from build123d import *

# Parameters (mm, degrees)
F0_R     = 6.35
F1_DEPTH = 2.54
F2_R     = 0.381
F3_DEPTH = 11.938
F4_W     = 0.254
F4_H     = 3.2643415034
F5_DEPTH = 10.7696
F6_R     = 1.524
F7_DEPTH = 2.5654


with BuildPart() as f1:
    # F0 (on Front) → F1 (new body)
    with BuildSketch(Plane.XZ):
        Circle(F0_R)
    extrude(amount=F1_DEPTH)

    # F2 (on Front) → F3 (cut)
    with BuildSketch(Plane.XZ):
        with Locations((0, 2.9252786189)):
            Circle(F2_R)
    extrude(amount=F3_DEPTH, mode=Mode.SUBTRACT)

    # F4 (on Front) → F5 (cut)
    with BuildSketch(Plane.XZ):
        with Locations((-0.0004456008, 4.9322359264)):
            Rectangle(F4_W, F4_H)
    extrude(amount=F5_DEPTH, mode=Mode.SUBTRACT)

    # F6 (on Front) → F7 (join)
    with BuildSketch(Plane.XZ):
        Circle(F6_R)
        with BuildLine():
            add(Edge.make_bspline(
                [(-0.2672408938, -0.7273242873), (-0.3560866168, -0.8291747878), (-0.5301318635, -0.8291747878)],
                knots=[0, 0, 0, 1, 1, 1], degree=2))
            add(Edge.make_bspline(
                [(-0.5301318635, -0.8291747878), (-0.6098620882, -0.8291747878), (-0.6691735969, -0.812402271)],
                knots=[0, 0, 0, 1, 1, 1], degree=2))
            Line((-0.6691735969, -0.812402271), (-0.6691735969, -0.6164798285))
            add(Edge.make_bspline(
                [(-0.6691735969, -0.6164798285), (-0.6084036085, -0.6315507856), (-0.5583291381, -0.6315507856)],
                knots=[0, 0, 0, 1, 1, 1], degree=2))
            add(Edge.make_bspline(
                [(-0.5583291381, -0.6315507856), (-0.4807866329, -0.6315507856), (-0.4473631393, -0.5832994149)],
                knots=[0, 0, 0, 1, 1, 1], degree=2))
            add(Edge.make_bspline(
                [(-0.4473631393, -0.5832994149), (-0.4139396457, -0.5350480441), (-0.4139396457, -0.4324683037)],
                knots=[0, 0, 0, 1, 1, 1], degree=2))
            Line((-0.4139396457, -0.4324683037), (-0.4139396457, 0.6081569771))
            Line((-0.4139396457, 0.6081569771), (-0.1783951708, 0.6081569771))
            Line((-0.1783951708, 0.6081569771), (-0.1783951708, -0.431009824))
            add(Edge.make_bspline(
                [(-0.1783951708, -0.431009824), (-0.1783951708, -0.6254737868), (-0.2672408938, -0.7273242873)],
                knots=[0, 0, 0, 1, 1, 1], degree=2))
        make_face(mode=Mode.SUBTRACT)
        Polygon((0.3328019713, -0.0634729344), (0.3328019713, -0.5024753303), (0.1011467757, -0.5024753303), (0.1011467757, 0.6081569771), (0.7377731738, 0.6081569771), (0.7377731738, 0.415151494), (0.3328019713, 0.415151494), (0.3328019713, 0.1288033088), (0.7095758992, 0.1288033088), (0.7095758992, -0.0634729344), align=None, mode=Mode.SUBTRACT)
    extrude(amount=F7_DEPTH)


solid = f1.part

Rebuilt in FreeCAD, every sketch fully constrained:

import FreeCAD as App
import Part
import Sketcher
Q = App.Units.Quantity

doc = App.newDocument("Part")
body = doc.addObject("PartDesign::Body", "Body")

# Sketch on XZ plane
sketch1 = body.newObject("Sketcher::SketchObject", "Sketch")
sketch1.AttachmentSupport = (doc.getObject("XZ_Plane"), [""])
sketch1.MapMode = "FlatFace"
sketch1.addGeometry(Part.Circle(App.Vector(0, 0, 0), App.Vector(0, 0, 1), 6), False)
sketch1.addConstraint([
    Sketcher.Constraint("Coincident", 0, 3, -1, 1),
    Sketcher.Constraint("Diameter", 0, Q("0.5 in")),
])
pad1 = body.newObject("PartDesign::Pad", "Pad")
pad1.Profile = sketch1
pad1.Length = Q("0.1 in")

# Sketch on XZ plane
sketch2 = body.newObject("Sketcher::SketchObject", "Sketch001")
sketch2.AttachmentSupport = (doc.getObject("XZ_Plane"), [""])
sketch2.MapMode = "FlatFace"
sketch2.addGeometry(Part.Circle(App.Vector(0, 2.93, 0), App.Vector(0, 0, 1), 0.38), False)
sketch2.addConstraint([
    Sketcher.Constraint("PointOnObject", 0, 3, -2),
    Sketcher.Constraint("Diameter", 0, Q("0.03 in")),
    Sketcher.Constraint("DistanceY", -1, 1, 0, 3, 2.925279),
])
pocket1 = body.newObject("PartDesign::Pocket", "Pocket")
pocket1.Profile = sketch2
pocket1.Length = Q("0.47 in")
pocket1.Reversed = True

# Sketch on XZ plane
sketch3 = body.newObject("Sketcher::SketchObject", "Sketch002")
sketch3.AttachmentSupport = (doc.getObject("XZ_Plane"), [""])
sketch3.MapMode = "FlatFace"
sketch3.addGeometry([
    Part.LineSegment(App.Vector(-0.13, 6.56, 0), App.Vector(-0.13, 3.3, 0)),
    Part.LineSegment(App.Vector(-0.13, 3.3, 0), App.Vector(0.13, 3.3, 0)),
    Part.LineSegment(App.Vector(0.13, 3.3, 0), App.Vector(0.13, 6.56, 0)),
    Part.LineSegment(App.Vector(0.13, 6.56, 0), App.Vector(-0.13, 6.56, 0)),
], False)
sketch3.addConstraint([
    Sketcher.Constraint("Coincident", 0, 2, 1, 1),
    Sketcher.Constraint("Coincident", 1, 2, 2, 1),
    Sketcher.Constraint("Coincident", 2, 2, 3, 1),
    Sketcher.Constraint("Coincident", 3, 2, 0, 1),
    Sketcher.Constraint("Vertical", 0),
    Sketcher.Constraint("Horizontal", 1),
    Sketcher.Constraint("Vertical", 2),
    Sketcher.Constraint("Horizontal", 3),
    Sketcher.Constraint("DistanceX", 1, 1, 1, 2, Q("0.01 in")),
    Sketcher.Constraint("DistanceY", 0, 2, 0, 1, 3.264342),
    Sketcher.Constraint("DistanceX", 0, 2, -1, 1, 0.127446),
    Sketcher.Constraint("DistanceY", -1, 1, 0, 2, 3.300065),
])
pocket2 = body.newObject("PartDesign::Pocket", "Pocket001")
pocket2.Profile = sketch3
pocket2.Length = Q("0.424 in")
pocket2.Reversed = True

# Sketch on XZ plane
sketch4 = body.newObject("Sketcher::SketchObject", "Sketch003")
sketch4.AttachmentSupport = (doc.getObject("XZ_Plane"), [""])
sketch4.MapMode = "FlatFace"
sketch4.addGeometry([
    Part.Circle(App.Vector(0, 0, 0), App.Vector(0, 0, 1), 1.524),  # 0
    Part.BSplineCurve([App.Vector(-0.178395, -0.43101, 0), App.Vector(-0.178395, -0.625474, 0), App.Vector(-0.356087, -0.829175, 0), App.Vector(-0.609862, -0.829175, 0), App.Vector(-0.669174, -0.812402, 0)], [3, 1, 1, 3], [0, 1, 2, 2.458100558], False, 2, [1, 1, 1, 1, 1], False),  # 1
    Part.LineSegment(App.Vector(-0.669174, -0.812402, 0), App.Vector(-0.669174, -0.61648, 0)),  # 2
    Part.BSplineCurve([App.Vector(-0.669174, -0.61648, 0), App.Vector(-0.608404, -0.631551, 0), App.Vector(-0.480787, -0.631551, 0), App.Vector(-0.447363, -0.583299, 0)], [3, 1, 3], [0, 1, 2.548543691], False, 2, [1, 1, 1, 1], False),  # 3
    Part.BSplineCurve([App.Vector(-0.447363, -0.583299, 0), App.Vector(-0.41394, -0.535048, 0), App.Vector(-0.41394, -0.432468, 0)], [3, 3], [0, 1], False, 2, [1, 1, 1], False),  # 4
    Part.LineSegment(App.Vector(-0.41394, -0.432468, 0), App.Vector(-0.41394, 0.608157, 0)),  # 5
    Part.LineSegment(App.Vector(-0.41394, 0.608157, 0), App.Vector(-0.178395, 0.608157, 0)),  # 6
    Part.LineSegment(App.Vector(-0.178395, 0.608157, 0), App.Vector(-0.178395, -0.43101, 0)),  # 7
    Part.LineSegment(App.Vector(0.709576, -0.063473, 0), App.Vector(0.332802, -0.063473, 0)),  # 8
    Part.LineSegment(App.Vector(0.332802, -0.063473, 0), App.Vector(0.332802, -0.502475, 0)),  # 9
    Part.LineSegment(App.Vector(0.332802, -0.502475, 0), App.Vector(0.101147, -0.502475, 0)),  # 10
    Part.LineSegment(App.Vector(0.101147, -0.502475, 0), App.Vector(0.101147, 0.608157, 0)),  # 11
    Part.LineSegment(App.Vector(0.101147, 0.608157, 0), App.Vector(0.737773, 0.608157, 0)),  # 12
    Part.LineSegment(App.Vector(0.737773, 0.608157, 0), App.Vector(0.737773, 0.415151, 0)),  # 13
    Part.LineSegment(App.Vector(0.737773, 0.415151, 0), App.Vector(0.332802, 0.415151, 0)),  # 14
    Part.LineSegment(App.Vector(0.332802, 0.415151, 0), App.Vector(0.332802, 0.128803, 0)),  # 15
    Part.LineSegment(App.Vector(0.332802, 0.128803, 0), App.Vector(0.709576, 0.128803, 0)),  # 16
    Part.LineSegment(App.Vector(0.709576, 0.128803, 0), App.Vector(0.709576, -0.063473, 0)),  # 17
], False)
sketch4.addConstraint([
    Sketcher.Constraint("Block", 1),
    Sketcher.Constraint("Block", 3),
    Sketcher.Constraint("Block", 4),
    Sketcher.Constraint("Coincident", 1, 2, 2, 1),
    Sketcher.Constraint("Coincident", 2, 2, 3, 1),
    Sketcher.Constraint("Coincident", 4, 2, 5, 1),
    Sketcher.Constraint("Coincident", 5, 2, 6, 1),
    Sketcher.Constraint("Coincident", 6, 2, 7, 1),
    Sketcher.Constraint("Coincident", 7, 2, 1, 1),
    Sketcher.Constraint("Coincident", 8, 2, 9, 1),
    Sketcher.Constraint("Coincident", 9, 2, 10, 1),
    Sketcher.Constraint("Coincident", 10, 2, 11, 1),
    Sketcher.Constraint("Coincident", 11, 2, 12, 1),
    Sketcher.Constraint("Coincident", 12, 2, 13, 1),
    Sketcher.Constraint("Coincident", 13, 2, 14, 1),
    Sketcher.Constraint("Coincident", 14, 2, 15, 1),
    Sketcher.Constraint("Coincident", 15, 2, 16, 1),
    Sketcher.Constraint("Coincident", 16, 2, 17, 1),
    Sketcher.Constraint("Coincident", 17, 2, 8, 1),
    Sketcher.Constraint("Vertical", 5),
    Sketcher.Constraint("Horizontal", 6),
    Sketcher.Constraint("Vertical", 7),
    Sketcher.Constraint("Horizontal", 8),
    Sketcher.Constraint("Vertical", 9),
    Sketcher.Constraint("Horizontal", 10),
    Sketcher.Constraint("Vertical", 11),
    Sketcher.Constraint("Horizontal", 12),
    Sketcher.Constraint("Vertical", 13),
    Sketcher.Constraint("Horizontal", 14),
    Sketcher.Constraint("Vertical", 15),
    Sketcher.Constraint("Horizontal", 16),
    Sketcher.Constraint("Vertical", 17),
    Sketcher.Constraint("Coincident", 0, 3, -1, 1),
    Sketcher.Constraint("Horizontal", 6, 2, 11, 2),
    Sketcher.Constraint("Vertical", 9, 2, 14, 2),
    Sketcher.Constraint("Diameter", 0, Q("0.12 in")),
    Sketcher.Constraint("DistanceX", 14, 2, 14, 1, 0.404971),
    Sketcher.Constraint("DistanceY", 15, 2, 15, 1, 0.286348),
    Sketcher.Constraint("DistanceX", -1, 1, 8, 2, 0.332802),
    Sketcher.Constraint("DistanceX", 8, 2, 8, 1, 0.376774),
    Sketcher.Constraint("DistanceX", 10, 2, 10, 1, 0.231655),
    Sketcher.Constraint("DistanceY", 5, 1, 5, 2, 1.040625),
    Sketcher.Constraint("DistanceY", 9, 2, 9, 1, 0.439002),
    Sketcher.Constraint("DistanceY", 11, 1, 11, 2, 1.110632),
    Sketcher.Constraint("DistanceY", 13, 2, 13, 1, 0.193005),
])
pad2 = body.newObject("PartDesign::Pad", "Pad001")
pad2.Profile = sketch4
pad2.Length = Q("0.101 in")

doc.recompute()
